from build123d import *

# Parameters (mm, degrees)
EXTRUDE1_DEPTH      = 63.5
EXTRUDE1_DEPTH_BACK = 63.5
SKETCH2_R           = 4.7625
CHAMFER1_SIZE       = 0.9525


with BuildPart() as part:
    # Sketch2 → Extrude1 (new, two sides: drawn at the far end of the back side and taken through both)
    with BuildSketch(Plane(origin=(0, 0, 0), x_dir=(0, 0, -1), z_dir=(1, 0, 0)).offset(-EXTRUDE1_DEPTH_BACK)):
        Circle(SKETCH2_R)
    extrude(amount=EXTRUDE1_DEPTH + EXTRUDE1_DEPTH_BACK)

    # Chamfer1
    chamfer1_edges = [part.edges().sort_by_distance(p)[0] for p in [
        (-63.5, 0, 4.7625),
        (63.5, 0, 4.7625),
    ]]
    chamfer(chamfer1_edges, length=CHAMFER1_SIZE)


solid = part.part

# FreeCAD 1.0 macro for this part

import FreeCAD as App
import Part
import Sketcher

V = App.Vector
Q = App.Units.Quantity


def edges_at(feature, points):
    """Names of the edges that pass closest to the given points."""
    edges = feature.Shape.Edges
    near = lambda p: min(range(len(edges)), key=lambda i: edges[i].distToShape(Part.Vertex(*p))[0])
    return sorted({f"Edge{near(p) + 1}" for p in points})

doc = App.newDocument("Part")
body = doc.addObject("PartDesign::Body", "Body")

sketch1 = body.newObject("Sketcher::SketchObject", "Sketch")
sketch1.AttachmentSupport = (doc.getObject("YZ_Plane"), [""])
sketch1.MapMode = "FlatFace"
sketch1.addGeometry(Part.Circle(V(0, 0, 0), V(0, 0, 1), 4.8), False)
sketch1.addConstraint([
    Sketcher.Constraint("Coincident", 0, 3, -1, 1),
    Sketcher.Constraint("Diameter", 0, Q("0.375 in")),
])
pad1 = body.newObject("PartDesign::Pad", "Pad")
pad1.Profile = sketch1
pad1.Type = "TwoLengths"
pad1.Length = Q("2.5 in")
pad1.Length2 = Q("2.5 in")
doc.recompute()

chamfer = body.newObject("PartDesign::Chamfer", "Chamfer")
chamfer.Base = (pad1, edges_at(pad1, [(-63.5, 0, 4.763), (63.5, 0, 4.763)]))
chamfer.Size = Q("0.0375 in")

doc.recompute()
